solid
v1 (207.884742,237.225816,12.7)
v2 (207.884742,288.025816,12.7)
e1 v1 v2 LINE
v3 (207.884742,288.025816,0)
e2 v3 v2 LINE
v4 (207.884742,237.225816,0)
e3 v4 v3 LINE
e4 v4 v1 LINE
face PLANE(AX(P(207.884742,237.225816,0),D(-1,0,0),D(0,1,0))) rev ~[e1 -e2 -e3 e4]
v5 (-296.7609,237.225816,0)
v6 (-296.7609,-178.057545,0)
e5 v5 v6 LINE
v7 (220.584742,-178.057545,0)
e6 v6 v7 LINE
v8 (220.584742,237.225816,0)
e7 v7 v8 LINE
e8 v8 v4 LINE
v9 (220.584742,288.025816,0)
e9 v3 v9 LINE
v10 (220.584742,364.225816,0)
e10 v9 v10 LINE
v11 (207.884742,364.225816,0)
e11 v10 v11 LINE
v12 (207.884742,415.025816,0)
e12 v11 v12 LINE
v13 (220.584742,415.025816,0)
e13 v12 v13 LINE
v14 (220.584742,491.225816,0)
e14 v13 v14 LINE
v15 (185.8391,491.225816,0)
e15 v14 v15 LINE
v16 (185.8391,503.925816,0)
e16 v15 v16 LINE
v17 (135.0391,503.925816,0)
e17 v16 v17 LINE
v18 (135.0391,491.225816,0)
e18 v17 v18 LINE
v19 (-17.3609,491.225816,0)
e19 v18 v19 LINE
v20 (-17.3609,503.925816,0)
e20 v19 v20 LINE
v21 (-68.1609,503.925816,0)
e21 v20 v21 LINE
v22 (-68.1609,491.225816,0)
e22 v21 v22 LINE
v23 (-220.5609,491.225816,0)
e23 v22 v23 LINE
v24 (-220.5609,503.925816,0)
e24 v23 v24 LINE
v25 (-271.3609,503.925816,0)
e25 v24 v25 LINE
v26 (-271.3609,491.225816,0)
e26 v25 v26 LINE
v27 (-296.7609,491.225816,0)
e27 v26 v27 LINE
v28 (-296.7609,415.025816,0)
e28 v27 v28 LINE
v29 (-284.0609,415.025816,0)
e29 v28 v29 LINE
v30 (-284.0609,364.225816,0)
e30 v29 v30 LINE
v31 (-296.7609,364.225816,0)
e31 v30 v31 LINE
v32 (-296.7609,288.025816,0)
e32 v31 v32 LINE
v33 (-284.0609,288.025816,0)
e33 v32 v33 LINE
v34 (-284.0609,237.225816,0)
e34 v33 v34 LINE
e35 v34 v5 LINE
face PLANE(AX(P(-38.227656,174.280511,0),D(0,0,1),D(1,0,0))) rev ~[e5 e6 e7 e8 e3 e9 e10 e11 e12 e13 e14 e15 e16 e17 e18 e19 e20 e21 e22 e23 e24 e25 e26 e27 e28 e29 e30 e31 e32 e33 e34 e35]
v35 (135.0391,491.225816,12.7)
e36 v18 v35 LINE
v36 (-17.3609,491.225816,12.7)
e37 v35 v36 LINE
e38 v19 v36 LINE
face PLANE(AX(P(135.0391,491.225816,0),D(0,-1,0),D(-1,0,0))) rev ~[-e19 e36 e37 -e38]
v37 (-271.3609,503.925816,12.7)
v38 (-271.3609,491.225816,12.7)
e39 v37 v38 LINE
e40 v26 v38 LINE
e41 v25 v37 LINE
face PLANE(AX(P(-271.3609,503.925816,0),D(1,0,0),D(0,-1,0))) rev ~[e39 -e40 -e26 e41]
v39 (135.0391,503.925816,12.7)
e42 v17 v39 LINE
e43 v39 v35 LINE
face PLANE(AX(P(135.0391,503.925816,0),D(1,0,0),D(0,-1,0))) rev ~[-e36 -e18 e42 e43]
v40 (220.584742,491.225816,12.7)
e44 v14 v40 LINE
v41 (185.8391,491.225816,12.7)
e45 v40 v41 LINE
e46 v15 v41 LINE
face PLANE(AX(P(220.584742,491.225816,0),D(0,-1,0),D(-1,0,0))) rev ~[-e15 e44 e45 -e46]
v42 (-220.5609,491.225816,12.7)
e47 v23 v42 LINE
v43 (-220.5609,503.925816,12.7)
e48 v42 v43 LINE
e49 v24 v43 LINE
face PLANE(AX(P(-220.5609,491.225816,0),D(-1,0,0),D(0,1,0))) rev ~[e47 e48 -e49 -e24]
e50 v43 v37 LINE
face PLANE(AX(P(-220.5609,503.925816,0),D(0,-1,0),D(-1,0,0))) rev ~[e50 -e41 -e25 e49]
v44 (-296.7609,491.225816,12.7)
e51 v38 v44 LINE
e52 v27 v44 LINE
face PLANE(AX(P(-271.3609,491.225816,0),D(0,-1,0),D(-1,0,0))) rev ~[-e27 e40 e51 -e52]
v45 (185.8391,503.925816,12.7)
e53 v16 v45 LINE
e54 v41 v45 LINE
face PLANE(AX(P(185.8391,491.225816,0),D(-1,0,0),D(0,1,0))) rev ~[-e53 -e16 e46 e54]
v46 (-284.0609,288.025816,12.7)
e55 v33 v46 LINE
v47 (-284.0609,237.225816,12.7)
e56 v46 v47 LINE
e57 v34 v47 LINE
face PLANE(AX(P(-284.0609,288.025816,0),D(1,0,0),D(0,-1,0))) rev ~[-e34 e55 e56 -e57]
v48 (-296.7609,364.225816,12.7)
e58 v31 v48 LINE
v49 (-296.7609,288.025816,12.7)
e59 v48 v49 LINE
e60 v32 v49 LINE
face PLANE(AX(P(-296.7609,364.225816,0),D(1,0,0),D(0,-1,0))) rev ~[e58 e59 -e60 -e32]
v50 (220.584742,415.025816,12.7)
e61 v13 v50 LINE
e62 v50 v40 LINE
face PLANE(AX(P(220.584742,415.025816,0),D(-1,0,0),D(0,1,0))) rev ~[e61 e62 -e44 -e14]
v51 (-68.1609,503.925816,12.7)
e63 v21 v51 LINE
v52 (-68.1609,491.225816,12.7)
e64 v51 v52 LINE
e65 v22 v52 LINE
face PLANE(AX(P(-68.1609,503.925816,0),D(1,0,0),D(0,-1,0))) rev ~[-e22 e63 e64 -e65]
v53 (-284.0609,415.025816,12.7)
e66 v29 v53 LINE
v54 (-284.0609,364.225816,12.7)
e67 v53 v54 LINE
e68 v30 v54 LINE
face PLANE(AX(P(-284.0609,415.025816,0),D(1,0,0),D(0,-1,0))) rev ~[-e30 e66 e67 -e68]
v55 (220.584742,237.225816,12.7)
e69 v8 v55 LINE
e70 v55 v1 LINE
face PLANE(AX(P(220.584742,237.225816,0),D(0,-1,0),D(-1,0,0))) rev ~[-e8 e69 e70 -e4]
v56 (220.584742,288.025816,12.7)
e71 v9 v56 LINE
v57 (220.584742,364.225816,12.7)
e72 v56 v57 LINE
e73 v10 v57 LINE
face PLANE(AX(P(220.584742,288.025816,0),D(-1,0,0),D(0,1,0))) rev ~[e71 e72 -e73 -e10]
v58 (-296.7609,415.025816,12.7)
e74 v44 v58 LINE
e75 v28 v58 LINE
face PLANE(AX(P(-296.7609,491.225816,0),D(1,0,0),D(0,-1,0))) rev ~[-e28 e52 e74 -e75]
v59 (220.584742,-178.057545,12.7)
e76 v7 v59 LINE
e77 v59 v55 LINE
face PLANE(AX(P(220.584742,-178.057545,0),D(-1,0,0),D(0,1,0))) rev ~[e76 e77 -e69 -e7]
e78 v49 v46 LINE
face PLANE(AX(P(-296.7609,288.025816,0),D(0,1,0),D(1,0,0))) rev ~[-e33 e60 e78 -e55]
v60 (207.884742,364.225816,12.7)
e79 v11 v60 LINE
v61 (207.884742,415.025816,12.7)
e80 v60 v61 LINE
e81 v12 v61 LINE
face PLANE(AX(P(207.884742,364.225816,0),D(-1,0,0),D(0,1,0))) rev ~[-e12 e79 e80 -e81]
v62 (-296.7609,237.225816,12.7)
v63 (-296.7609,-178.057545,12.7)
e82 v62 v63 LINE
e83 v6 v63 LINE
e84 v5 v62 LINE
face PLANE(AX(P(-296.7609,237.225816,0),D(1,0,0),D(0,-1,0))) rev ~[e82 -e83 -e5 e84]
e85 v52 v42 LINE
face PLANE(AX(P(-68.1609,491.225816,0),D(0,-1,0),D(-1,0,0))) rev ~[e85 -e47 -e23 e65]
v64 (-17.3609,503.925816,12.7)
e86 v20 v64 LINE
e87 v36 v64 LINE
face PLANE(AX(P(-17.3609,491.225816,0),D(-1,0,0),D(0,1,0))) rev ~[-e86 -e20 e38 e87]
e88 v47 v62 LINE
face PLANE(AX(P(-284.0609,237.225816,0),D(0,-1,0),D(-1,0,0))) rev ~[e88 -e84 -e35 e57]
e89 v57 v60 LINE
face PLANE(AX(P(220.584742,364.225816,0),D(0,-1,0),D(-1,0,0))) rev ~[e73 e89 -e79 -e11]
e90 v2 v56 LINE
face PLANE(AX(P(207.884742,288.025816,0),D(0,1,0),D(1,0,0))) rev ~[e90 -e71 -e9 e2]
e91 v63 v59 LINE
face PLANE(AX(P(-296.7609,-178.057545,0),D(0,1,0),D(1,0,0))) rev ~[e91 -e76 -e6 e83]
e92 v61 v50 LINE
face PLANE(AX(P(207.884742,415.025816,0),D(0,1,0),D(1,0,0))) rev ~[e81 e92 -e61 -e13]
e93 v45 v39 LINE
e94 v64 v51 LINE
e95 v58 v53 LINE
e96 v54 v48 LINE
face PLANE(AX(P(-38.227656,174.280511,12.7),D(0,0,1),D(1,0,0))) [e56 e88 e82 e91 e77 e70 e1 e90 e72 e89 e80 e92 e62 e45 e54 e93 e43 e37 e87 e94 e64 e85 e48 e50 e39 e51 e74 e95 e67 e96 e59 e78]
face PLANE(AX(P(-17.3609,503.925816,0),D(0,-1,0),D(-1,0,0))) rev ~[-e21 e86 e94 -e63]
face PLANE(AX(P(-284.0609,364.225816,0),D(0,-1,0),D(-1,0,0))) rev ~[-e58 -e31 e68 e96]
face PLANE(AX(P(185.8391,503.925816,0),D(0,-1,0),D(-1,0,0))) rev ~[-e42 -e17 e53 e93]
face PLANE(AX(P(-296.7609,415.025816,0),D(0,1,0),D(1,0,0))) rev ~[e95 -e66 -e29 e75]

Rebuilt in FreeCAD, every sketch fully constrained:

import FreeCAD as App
import Part
import Sketcher
Q = App.Units.Quantity


def add_polygon(sketch, points):
    """Adds a closed chain of lines whose ends are joined by coincident constraints."""
    first, n = sketch.GeometryCount, len(points)
    for a, b in zip(points, points[1:] + points[:1]):
        sketch.addGeometry(Part.LineSegment(App.Vector(*a, 0), App.Vector(*b, 0)), False)
    for i in range(n):
        sketch.addConstraint(Sketcher.Constraint("Coincident", first + i, 2, first + (i + 1) % n, 1))

doc = App.newDocument("Part")
params = doc.addObject("Spreadsheet::Sheet", "Params")
for row, (alias, value) in enumerate([
    ("sketch1_width", "1 in"),
    ("sketch1_width2", "2 in"),
    ("sketch1_width3", "6 in"),
    ("sketch1_height", "3 in"),
    ("sketch1_width4", "0.5 in"),
    ("pad1_length", "0.5 in"),
], start=1):
    params.set(f"A{row}", alias)
    params.set(f"B{row}", "=" + value)
    params.setAlias(f"B{row}", alias)

body = doc.addObject("PartDesign::Body", "Body")

# Sketch on XY plane
sketch1 = body.newObject("Sketcher::SketchObject", "Sketch")
sketch1.AttachmentSupport = (doc.getObject("XY_Plane"), [""])
sketch1.MapMode = "FlatFace"
add_polygon(sketch1, [(-271, 491), (-297, 491), (-297, 415), (-284, 415), (-284, 364), (-297, 364), (-297, 288), (-284, 288), (-284, 237), (-297, 237), (-297, -178), (221, -178), (221, 237), (208, 237), (208, 288), (221, 288), (221, 364), (208, 364), (208, 415), (221, 415), (221, 491), (186, 491), (186, 504), (135, 504), (135, 491), (-17, 491), (-17, 504), (-68, 504), (-68, 491), (-221, 491), (-221, 504), (-271, 504)])  # lines 0-31
sketch1.addConstraint([
    Sketcher.Constraint("Horizontal", 0),
    Sketcher.Constraint("Vertical", 1),
    Sketcher.Constraint("Horizontal", 2),
    Sketcher.Constraint("Vertical", 3),
    Sketcher.Constraint("Horizontal", 4),
    Sketcher.Constraint("Vertical", 5),
    Sketcher.Constraint("Horizontal", 6),
    Sketcher.Constraint("Vertical", 7),
    Sketcher.Constraint("Horizontal", 8),
    Sketcher.Constraint("Vertical", 9),
    Sketcher.Constraint("Horizontal", 10),
    Sketcher.Constraint("Vertical", 11),
    Sketcher.Constraint("Horizontal", 12),
    Sketcher.Constraint("Vertical", 13),
    Sketcher.Constraint("Horizontal", 14),
    Sketcher.Constraint("Vertical", 15),
    Sketcher.Constraint("Horizontal", 16),
    Sketcher.Constraint("Vertical", 17),
    Sketcher.Constraint("Horizontal", 18),
    Sketcher.Constraint("Vertical", 19),
    Sketcher.Constraint("Horizontal", 20),
    Sketcher.Constraint("Vertical", 21),
    Sketcher.Constraint("Horizontal", 22),
    Sketcher.Constraint("Vertical", 23),
    Sketcher.Constraint("Horizontal", 24),
    Sketcher.Constraint("Vertical", 25),
    Sketcher.Constraint("Horizontal", 26),
    Sketcher.Constraint("Vertical", 27),
    Sketcher.Constraint("Horizontal", 28),
    Sketcher.Constraint("Vertical", 29),
    Sketcher.Constraint("Horizontal", 30),
    Sketcher.Constraint("Vertical", 31),
    Sketcher.Constraint("Horizontal", 8, 2, 11, 2),
    Sketcher.Constraint("Horizontal", 6, 2, 13, 2),
    Sketcher.Constraint("Horizontal", 4, 2, 15, 2),
    Sketcher.Constraint("Horizontal", 2, 2, 17, 2),
    Sketcher.Constraint("Horizontal", 0, 2, 19, 2),
    Sketcher.Constraint("Horizontal", 20, 2, 23, 2),
    Sketcher.Constraint("Horizontal", 22, 2, 25, 2),
    Sketcher.Constraint("Horizontal", 24, 2, 27, 2),
    Sketcher.Constraint("Horizontal", 26, 2, 29, 2),
    Sketcher.Constraint("Vertical", 1, 2, 4, 2),
    Sketcher.Constraint("Vertical", 3, 2, 6, 2),
    Sketcher.Constraint("Vertical", 5, 2, 8, 2),
    Sketcher.Constraint("Vertical", 11, 2, 14, 2),
    Sketcher.Constraint("Vertical", 13, 2, 16, 2),
    Sketcher.Constraint("Vertical", 15, 2, 18, 2),
    Sketcher.Constraint("Equal", 8, 12),
    Sketcher.Constraint("Equal", 22, 26),
    Sketcher.Constraint("Equal", 24, 28),
    Sketcher.Constraint("Equal", 26, 30),
    Sketcher.Constraint("Equal", 30, 3),
    Sketcher.Constraint("Equal", 1, 5),
    Sketcher.Constraint("Equal", 3, 7),
    Sketcher.Constraint("Equal", 18, 21),
    Sketcher.Constraint("DistanceX", 0, 2, 0, 1, Q("1 in")),
    Sketcher.Constraint("DistanceX", 22, 2, 22, 1, Q("2 in")),
    Sketcher.Constraint("DistanceX", 24, 2, 24, 1, Q("6 in")),
    Sketcher.Constraint("DistanceY", 1, 2, 1, 1, Q("3 in")),
    Sketcher.Constraint("DistanceX", 2, 1, 2, 2, Q("0.5 in")),
    Sketcher.Constraint("DistanceX", 0, 2, -1, 1, Q("11.6835 in")),
    Sketcher.Constraint("DistanceX", 10, 1, 10, 2, 517.345642),
    Sketcher.Constraint("DistanceY", 9, 2, 9, 1, 415.283361),
    Sketcher.Constraint("DistanceY", -1, 1, 0, 2, 491.225816),
])
sketch1.setExpression("Constraints[87]", "Params.sketch1_width")
sketch1.setExpression("Constraints[88]", "Params.sketch1_width2")
sketch1.setExpression("Constraints[89]", "Params.sketch1_width3")
sketch1.setExpression("Constraints[90]", "Params.sketch1_height")
sketch1.setExpression("Constraints[91]", "Params.sketch1_width4")
pad1 = body.newObject("PartDesign::Pad", "Pad")
pad1.Profile = sketch1
pad1.setExpression("Length", "Params.pad1_length")

doc.recompute()
